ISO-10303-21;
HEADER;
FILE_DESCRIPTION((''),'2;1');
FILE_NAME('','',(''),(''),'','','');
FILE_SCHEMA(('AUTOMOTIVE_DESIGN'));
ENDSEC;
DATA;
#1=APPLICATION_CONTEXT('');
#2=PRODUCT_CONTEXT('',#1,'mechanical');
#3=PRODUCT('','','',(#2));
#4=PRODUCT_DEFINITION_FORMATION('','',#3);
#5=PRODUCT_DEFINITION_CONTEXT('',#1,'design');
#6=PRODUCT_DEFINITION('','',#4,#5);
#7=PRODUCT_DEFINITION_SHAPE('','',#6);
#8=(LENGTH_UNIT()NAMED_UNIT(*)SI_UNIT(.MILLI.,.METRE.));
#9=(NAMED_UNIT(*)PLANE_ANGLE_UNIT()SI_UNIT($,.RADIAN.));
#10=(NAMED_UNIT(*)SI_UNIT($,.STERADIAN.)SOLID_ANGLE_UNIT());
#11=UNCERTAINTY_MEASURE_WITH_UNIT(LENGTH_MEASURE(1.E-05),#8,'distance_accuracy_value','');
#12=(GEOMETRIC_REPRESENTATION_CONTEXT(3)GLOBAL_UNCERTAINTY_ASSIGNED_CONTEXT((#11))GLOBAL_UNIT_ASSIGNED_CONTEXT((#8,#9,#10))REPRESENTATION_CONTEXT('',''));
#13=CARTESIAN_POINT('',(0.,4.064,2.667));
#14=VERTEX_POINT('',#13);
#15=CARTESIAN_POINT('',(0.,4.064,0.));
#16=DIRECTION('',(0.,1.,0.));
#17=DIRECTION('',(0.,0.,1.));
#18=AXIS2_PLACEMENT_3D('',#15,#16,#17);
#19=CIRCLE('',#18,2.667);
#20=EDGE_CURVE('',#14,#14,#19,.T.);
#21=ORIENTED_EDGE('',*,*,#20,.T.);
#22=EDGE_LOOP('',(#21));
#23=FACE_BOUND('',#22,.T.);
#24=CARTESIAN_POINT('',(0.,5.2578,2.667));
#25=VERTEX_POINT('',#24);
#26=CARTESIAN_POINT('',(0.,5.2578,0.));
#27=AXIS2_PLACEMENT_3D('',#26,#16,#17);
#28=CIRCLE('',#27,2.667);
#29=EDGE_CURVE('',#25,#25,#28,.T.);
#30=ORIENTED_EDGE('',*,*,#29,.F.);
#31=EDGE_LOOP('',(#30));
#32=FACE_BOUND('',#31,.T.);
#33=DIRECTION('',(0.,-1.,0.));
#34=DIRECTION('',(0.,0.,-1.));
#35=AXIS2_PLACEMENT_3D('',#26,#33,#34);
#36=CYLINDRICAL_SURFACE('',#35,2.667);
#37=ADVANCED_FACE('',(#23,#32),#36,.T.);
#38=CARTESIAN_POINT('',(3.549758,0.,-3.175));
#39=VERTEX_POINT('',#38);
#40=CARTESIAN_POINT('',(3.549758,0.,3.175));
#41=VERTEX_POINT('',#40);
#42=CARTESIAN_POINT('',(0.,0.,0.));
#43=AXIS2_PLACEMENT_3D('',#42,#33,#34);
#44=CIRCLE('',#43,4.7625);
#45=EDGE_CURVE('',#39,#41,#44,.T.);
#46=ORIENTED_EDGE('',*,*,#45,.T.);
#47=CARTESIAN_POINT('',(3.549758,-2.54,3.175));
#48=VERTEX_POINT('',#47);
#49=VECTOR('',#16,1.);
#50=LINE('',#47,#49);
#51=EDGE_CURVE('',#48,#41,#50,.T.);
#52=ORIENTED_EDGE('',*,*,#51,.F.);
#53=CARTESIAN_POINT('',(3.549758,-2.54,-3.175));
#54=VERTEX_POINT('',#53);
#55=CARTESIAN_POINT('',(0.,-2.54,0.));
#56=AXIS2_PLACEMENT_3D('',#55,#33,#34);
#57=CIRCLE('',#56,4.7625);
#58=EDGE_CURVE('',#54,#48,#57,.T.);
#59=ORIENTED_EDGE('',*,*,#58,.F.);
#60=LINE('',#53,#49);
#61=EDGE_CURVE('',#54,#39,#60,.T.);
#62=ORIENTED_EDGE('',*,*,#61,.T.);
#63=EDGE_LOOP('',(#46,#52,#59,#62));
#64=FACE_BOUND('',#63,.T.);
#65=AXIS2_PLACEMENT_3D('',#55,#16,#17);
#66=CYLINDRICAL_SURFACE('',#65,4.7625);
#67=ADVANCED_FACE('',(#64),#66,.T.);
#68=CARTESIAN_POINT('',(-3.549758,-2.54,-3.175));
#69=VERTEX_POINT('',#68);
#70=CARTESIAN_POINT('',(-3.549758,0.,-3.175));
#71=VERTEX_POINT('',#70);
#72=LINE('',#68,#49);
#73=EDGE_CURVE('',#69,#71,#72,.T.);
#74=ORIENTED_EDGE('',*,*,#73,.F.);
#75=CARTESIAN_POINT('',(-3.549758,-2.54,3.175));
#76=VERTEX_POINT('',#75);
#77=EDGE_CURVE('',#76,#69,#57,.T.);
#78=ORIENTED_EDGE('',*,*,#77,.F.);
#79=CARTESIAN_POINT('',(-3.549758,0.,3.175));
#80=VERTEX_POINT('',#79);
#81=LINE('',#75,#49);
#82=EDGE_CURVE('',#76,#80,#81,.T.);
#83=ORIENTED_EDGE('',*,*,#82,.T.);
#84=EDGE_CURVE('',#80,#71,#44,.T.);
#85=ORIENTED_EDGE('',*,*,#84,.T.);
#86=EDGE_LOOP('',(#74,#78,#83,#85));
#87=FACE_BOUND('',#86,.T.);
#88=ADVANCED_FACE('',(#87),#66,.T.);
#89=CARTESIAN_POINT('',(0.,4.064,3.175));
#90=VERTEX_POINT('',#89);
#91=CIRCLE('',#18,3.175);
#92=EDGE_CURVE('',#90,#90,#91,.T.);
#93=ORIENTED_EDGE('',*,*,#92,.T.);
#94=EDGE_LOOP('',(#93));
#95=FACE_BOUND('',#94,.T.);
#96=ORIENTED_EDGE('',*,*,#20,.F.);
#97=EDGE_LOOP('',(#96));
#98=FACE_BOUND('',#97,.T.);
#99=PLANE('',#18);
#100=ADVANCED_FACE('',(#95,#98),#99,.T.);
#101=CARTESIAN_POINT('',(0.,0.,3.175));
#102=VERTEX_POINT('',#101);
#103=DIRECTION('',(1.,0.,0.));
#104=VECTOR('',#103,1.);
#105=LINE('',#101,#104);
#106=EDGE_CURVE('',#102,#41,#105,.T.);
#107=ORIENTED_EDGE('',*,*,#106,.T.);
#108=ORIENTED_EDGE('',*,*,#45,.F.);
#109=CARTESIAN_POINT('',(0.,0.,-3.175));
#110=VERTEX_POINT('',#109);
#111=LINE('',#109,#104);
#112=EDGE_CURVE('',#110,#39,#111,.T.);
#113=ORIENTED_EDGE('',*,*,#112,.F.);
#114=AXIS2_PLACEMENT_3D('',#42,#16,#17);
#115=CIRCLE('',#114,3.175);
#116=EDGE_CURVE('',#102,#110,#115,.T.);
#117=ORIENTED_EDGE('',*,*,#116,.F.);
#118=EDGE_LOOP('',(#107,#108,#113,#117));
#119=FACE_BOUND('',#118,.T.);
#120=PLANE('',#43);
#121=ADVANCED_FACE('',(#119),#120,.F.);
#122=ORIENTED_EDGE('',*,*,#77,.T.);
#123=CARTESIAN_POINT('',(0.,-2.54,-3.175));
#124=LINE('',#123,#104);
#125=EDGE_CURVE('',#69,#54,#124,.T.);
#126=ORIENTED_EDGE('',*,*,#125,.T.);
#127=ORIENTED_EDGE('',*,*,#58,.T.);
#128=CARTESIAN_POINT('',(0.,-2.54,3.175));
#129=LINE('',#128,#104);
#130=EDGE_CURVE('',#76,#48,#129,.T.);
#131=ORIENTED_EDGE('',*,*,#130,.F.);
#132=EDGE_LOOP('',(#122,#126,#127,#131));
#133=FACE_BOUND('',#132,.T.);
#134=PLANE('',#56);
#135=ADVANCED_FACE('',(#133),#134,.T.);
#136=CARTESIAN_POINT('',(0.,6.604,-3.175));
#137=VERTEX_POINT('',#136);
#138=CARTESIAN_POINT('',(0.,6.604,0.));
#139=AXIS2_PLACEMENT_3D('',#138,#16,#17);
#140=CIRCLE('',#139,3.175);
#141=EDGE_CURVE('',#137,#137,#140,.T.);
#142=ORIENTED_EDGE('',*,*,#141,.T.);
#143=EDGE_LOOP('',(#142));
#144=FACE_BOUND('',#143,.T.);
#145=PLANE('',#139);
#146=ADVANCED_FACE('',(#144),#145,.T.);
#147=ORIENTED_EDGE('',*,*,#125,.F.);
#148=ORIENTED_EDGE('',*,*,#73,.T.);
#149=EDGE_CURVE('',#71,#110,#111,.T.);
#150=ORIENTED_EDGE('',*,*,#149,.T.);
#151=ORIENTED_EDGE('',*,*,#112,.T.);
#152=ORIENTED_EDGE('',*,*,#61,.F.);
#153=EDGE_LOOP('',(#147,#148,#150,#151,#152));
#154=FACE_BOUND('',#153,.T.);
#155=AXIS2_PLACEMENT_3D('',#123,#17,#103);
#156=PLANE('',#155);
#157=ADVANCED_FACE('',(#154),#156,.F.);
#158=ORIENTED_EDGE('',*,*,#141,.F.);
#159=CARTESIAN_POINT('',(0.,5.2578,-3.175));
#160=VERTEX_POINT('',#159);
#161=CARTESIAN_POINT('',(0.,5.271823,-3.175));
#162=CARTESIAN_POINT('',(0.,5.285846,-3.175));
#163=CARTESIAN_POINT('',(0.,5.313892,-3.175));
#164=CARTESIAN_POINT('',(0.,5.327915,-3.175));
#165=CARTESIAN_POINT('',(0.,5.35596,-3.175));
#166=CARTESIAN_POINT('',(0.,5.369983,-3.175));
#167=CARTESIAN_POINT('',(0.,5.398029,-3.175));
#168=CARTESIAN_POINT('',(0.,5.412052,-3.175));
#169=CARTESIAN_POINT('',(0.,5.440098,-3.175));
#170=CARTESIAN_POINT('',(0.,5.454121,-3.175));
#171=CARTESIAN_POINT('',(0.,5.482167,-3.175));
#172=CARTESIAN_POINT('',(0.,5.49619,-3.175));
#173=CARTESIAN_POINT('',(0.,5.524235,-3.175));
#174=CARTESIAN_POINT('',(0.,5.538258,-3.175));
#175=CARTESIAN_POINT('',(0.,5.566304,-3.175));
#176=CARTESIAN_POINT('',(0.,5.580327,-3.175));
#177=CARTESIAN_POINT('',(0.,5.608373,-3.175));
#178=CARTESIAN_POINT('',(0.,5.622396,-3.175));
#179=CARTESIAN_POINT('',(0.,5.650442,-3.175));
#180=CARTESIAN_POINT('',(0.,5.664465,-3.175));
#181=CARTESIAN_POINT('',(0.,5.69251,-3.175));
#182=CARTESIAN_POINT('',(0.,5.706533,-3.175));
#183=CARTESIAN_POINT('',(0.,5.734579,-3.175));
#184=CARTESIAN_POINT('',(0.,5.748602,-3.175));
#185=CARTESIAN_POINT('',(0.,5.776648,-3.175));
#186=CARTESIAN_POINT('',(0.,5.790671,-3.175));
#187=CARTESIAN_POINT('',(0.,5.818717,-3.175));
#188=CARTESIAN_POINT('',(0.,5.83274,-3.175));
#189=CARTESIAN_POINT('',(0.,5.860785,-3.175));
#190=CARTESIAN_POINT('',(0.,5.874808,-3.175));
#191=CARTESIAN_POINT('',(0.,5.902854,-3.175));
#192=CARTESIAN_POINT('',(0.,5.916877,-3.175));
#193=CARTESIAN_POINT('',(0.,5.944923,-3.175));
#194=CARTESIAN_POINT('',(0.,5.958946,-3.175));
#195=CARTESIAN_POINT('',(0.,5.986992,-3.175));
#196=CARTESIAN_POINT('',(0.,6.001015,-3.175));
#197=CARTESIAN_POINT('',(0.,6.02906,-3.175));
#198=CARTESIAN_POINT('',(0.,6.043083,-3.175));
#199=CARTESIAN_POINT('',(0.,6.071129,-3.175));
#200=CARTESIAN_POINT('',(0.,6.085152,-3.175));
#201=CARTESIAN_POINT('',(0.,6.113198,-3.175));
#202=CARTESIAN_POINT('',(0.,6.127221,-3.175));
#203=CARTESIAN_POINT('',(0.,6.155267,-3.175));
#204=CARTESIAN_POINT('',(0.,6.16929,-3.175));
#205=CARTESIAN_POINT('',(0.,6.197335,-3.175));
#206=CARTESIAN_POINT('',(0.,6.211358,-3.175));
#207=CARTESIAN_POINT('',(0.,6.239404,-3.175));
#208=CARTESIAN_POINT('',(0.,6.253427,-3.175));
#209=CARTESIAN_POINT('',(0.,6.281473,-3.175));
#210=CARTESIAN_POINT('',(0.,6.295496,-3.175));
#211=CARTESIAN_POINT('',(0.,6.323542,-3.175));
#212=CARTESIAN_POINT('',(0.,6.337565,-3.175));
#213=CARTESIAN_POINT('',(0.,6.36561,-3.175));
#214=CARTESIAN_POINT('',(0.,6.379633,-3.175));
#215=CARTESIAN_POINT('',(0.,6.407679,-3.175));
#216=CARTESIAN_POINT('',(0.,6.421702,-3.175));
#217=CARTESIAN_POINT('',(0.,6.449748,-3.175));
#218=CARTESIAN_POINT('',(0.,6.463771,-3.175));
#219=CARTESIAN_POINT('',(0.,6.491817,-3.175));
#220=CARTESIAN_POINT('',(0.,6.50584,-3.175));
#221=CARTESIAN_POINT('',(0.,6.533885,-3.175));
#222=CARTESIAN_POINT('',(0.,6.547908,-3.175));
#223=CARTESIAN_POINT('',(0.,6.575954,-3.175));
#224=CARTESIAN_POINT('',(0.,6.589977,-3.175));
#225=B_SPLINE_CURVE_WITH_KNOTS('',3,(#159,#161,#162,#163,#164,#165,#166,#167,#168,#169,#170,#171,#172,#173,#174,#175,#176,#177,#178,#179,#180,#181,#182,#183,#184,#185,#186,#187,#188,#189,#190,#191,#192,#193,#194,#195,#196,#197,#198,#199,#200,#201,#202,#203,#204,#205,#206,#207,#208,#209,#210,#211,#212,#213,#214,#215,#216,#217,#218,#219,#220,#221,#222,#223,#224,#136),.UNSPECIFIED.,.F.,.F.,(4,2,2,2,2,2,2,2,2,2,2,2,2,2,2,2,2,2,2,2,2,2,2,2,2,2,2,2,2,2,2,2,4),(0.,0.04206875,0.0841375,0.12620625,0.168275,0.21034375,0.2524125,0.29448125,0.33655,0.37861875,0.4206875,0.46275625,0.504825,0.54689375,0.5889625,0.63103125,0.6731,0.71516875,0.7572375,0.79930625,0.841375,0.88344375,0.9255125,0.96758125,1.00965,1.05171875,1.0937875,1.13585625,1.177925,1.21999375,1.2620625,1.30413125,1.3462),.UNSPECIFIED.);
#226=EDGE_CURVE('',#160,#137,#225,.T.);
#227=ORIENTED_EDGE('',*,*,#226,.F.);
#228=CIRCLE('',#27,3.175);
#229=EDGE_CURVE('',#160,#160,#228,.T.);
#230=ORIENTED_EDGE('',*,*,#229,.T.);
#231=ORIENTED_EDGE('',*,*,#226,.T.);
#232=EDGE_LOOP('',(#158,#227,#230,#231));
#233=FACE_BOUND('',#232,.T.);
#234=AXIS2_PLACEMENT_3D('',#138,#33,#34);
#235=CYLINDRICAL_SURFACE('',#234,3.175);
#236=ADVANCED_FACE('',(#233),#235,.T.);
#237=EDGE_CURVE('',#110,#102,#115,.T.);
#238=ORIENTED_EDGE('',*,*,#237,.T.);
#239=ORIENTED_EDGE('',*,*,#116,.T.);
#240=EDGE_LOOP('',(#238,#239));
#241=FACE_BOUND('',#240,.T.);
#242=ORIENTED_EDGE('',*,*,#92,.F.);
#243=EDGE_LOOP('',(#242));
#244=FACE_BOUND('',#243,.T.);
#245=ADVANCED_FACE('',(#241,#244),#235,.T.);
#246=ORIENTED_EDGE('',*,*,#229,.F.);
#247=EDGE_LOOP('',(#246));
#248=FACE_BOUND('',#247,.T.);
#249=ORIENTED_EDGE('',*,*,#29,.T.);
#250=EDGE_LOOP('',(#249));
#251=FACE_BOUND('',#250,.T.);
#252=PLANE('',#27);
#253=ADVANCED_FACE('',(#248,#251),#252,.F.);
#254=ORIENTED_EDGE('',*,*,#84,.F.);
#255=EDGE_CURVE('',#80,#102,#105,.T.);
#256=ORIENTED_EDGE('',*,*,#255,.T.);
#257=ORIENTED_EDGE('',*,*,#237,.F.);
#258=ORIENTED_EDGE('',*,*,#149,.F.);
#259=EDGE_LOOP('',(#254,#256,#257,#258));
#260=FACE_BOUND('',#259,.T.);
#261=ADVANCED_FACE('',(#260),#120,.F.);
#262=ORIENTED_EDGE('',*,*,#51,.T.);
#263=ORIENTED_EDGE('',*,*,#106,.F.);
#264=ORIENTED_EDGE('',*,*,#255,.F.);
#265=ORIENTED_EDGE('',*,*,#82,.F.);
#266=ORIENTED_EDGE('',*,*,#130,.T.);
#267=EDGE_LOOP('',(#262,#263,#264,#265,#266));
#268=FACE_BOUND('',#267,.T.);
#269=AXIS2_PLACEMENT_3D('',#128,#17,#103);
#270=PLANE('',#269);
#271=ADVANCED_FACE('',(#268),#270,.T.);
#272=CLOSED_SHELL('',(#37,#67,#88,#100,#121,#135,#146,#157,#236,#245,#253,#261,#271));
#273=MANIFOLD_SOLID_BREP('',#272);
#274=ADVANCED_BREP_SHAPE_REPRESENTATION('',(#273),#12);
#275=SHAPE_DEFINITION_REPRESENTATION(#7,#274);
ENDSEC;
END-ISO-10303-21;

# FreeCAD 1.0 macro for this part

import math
import FreeCAD as App
import Part
import Sketcher
Q = App.Units.Quantity


def add_polygon(sketch, points):
    """Adds a closed chain of lines whose ends are joined by coincident constraints."""
    first, n = sketch.GeometryCount, len(points)
    for a, b in zip(points, points[1:] + points[:1]):
        sketch.addGeometry(Part.LineSegment(App.Vector(*a, 0), App.Vector(*b, 0)), False)
    for i in range(n):
        sketch.addConstraint(Sketcher.Constraint("Coincident", first + i, 2, first + (i + 1) % n, 1))

doc = App.newDocument("Part")
body = doc.addObject("PartDesign::Body", "Body")

sketch1 = body.newObject("Sketcher::SketchObject", "Sketch")
sketch1.AttachmentSupport = (doc.getObject("XZ_Plane"), [""])
sketch1.MapMode = "FlatFace"
sketch1.addGeometry(Part.Circle(App.Vector(0, 0, 0), App.Vector(0, 0, 1), 3.2), False)
sketch1.addConstraint([
    Sketcher.Constraint("Coincident", 0, 3, -1, 1),
    Sketcher.Constraint("Diameter", 0, Q("0.25 in")),
])
pad1 = body.newObject("PartDesign::Pad", "Pad")
pad1.Profile = sketch1
pad1.Length = Q("0.26 in")
pad1.Reversed = True

sketch2 = body.newObject("Sketcher::SketchObject", "Sketch001")
sketch2.AttachmentSupport = (doc.getObject("XZ_Plane"), [""])
sketch2.MapMode = "FlatFace"
sketch2.addGeometry([
    Part.LineSegment(App.Vector(3.5, 3.2, 0), App.Vector(-3.5, 3.2, 0)),
    Part.ArcOfCircle(Part.Circle(App.Vector(0, 0, 0), App.Vector(0, 0, 1), 4.8), math.radians(138), math.radians(222)),
    Part.LineSegment(App.Vector(-3.5, -3.2, 0), App.Vector(3.5, -3.2, 0)),
    Part.ArcOfCircle(Part.Circle(App.Vector(0, 0, 0), App.Vector(0, 0, 1), 4.8), math.radians(-42), math.radians(42)),
], False)
sketch2.addConstraint([
    Sketcher.Constraint("Coincident", 0, 2, 1, 1),
    Sketcher.Constraint("Coincident", 1, 2, 2, 1),
    Sketcher.Constraint("Coincident", 2, 2, 3, 1),
    Sketcher.Constraint("Coincident", 3, 2, 0, 1),
    Sketcher.Constraint("Horizontal", 0),
    Sketcher.Constraint("Horizontal", 2),
    Sketcher.Constraint("Coincident", 1, 3, -1, 1),
    Sketcher.Constraint("Coincident", 3, 3, -1, 1),
    Sketcher.Constraint("Equal", 1, 3),
    Sketcher.Constraint("Vertical", 0, 2, 1, 2),
    Sketcher.Constraint("Radius", 1, Q("0.1875 in")),
    Sketcher.Constraint("DistanceY", 1, 2, 0, 2, Q("0.25 in")),
])
pad2 = body.newObject("PartDesign::Pad", "Pad001")
pad2.Profile = sketch2
pad2.Length = Q("0.1 in")

sketch3 = body.newObject("Sketcher::SketchObject", "Sketch002")
sketch3.AttachmentSupport = (doc.getObject("XZ_Plane"), [""])
sketch3.MapMode = "FlatFace"
sketch3.AttachmentOffset = App.Placement(App.Vector(0, 0, -0.16 * 25.4), App.Rotation())
add_polygon(sketch3, [(-7.2, -5.6), (-7.2, 5.6), (7.2, 5.6), (7.2, -5.6)])
sketch3.addGeometry(Part.Circle(App.Vector(0, 0, 0), App.Vector(0, 0, 1), 2.7), False)
sketch3.addConstraint([
    Sketcher.Constraint("Vertical", 0),
    Sketcher.Constraint("Horizontal", 1),
    Sketcher.Constraint("Vertical", 2),
    Sketcher.Constraint("Horizontal", 3),
    Sketcher.Constraint("Coincident", 4, 3, -1, 1),
    Sketcher.Constraint("Diameter", 4, Q("0.21 in")),
    Sketcher.Constraint("DistanceX", 1, 1, 1, 2, 14.455),
    Sketcher.Constraint("DistanceY", 0, 1, 0, 2, 11.28),
    Sketcher.Constraint("DistanceX", 0, 2, -1, 1, 7.227),
    Sketcher.Constraint("DistanceY", -1, 1, 0, 2, 5.64),
])
pocket1 = body.newObject("PartDesign::Pocket", "Pocket")
pocket1.Profile = sketch3
pocket1.Length = Q("0.047 in")

doc.recompute()
